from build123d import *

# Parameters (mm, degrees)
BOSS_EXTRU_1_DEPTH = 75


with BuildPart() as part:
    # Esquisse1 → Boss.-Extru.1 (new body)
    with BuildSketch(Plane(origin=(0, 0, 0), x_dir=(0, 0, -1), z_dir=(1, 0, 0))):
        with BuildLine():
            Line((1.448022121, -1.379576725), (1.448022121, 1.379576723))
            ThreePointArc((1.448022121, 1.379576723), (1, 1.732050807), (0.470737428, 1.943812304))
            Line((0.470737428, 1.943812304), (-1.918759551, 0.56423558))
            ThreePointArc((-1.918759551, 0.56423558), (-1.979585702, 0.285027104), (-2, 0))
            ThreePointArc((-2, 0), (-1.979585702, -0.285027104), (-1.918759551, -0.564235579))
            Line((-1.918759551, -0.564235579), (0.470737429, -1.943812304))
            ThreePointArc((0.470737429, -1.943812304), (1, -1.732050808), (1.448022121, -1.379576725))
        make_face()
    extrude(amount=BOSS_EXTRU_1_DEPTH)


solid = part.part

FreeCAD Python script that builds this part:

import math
import FreeCAD as App
import Part
import Sketcher
Q = App.Units.Quantity

doc = App.newDocument("Part")
params = doc.addObject("Spreadsheet::Sheet", "Params")
for row, (alias, value) in enumerate([
    ("sketch1_radius", "2 mm"),
    ("pad1_length", "75 mm"),
], start=1):
    params.set(f"A{row}", alias)
    params.set(f"B{row}", "=" + value)
    params.setAlias(f"B{row}", alias)

body = doc.addObject("PartDesign::Body", "Body")

# Sketch on YZ plane
sketch1 = body.newObject("Sketcher::SketchObject", "Sketch")
sketch1.AttachmentSupport = (doc.getObject("YZ_Plane"), [""])
sketch1.MapMode = "FlatFace"
sketch1.addGeometry([
    Part.LineSegment(App.Vector(-1.4, -1.4, 0), App.Vector(1.4, -1.4, 0)),  # 0
    Part.ArcOfCircle(Part.Circle(App.Vector(0, 0, 0), App.Vector(0, 0, 1), 2), math.radians(-46), math.radians(-14)),  # 1
    Part.LineSegment(App.Vector(1.9, -0.5, 0), App.Vector(0.6, 1.9, 0)),  # 2
    Part.ArcOfCircle(Part.Circle(App.Vector(0, 0, 0), App.Vector(0, 0, 1), 2), math.radians(73.61), math.radians(90)),  # 3
    Part.ArcOfCircle(Part.Circle(App.Vector(0, 0, 0), App.Vector(0, 0, 1), 2), math.radians(90), math.radians(106.39)),  # 4
    Part.LineSegment(App.Vector(-0.6, 1.9, 0), App.Vector(-1.9, -0.5, 0)),  # 5
    Part.ArcOfCircle(Part.Circle(App.Vector(0, 0, 0), App.Vector(0, 0, 1), 2), math.radians(-166), math.radians(-134)),  # 6
], False)
sketch1.addConstraint([
    Sketcher.Constraint("Coincident", 0, 2, 1, 1),
    Sketcher.Constraint("Coincident", 1, 2, 2, 1),
    Sketcher.Constraint("Coincident", 2, 2, 3, 1),
    Sketcher.Constraint("Tangent", 3, 2, 4, 1),
    Sketcher.Constraint("Coincident", 4, 2, 5, 1),
    Sketcher.Constraint("Coincident", 5, 2, 6, 1),
    Sketcher.Constraint("Coincident", 6, 2, 0, 1),
    Sketcher.Constraint("Horizontal", 0),
    Sketcher.Constraint("Coincident", 1, 3, -1, 1),
    Sketcher.Constraint("Coincident", 3, 3, -1, 1),
    Sketcher.Constraint("Coincident", 6, 3, -1, 1),
    Sketcher.Constraint("Equal", 1, 3),
    Sketcher.Constraint("Equal", 3, 4),
    Sketcher.Constraint("Equal", 4, 6),
    Sketcher.Constraint("PointOnObject", 3, 2, -2),
    Sketcher.Constraint("Horizontal", 2, 2, 4, 2),
    Sketcher.Constraint("Horizontal", 1, 2, 5, 2),
    Sketcher.Constraint("Radius", 1, Q("2 mm")),
    Sketcher.Constraint("Angle", 2, Q("120 deg")),
    Sketcher.Constraint("DistanceX", 0, 1, 0, 2, Q("2.759153 mm")),
    Sketcher.Constraint("DistanceY", -1, 1, 2, 2, Q("1.91876 mm")),
])
sketch1.setExpression("Constraints[17]", "Params.sketch1_radius")
pad1 = body.newObject("PartDesign::Pad", "Pad")
pad1.Profile = sketch1
pad1.setExpression("Length", "Params.pad1_length")

doc.recompute()
